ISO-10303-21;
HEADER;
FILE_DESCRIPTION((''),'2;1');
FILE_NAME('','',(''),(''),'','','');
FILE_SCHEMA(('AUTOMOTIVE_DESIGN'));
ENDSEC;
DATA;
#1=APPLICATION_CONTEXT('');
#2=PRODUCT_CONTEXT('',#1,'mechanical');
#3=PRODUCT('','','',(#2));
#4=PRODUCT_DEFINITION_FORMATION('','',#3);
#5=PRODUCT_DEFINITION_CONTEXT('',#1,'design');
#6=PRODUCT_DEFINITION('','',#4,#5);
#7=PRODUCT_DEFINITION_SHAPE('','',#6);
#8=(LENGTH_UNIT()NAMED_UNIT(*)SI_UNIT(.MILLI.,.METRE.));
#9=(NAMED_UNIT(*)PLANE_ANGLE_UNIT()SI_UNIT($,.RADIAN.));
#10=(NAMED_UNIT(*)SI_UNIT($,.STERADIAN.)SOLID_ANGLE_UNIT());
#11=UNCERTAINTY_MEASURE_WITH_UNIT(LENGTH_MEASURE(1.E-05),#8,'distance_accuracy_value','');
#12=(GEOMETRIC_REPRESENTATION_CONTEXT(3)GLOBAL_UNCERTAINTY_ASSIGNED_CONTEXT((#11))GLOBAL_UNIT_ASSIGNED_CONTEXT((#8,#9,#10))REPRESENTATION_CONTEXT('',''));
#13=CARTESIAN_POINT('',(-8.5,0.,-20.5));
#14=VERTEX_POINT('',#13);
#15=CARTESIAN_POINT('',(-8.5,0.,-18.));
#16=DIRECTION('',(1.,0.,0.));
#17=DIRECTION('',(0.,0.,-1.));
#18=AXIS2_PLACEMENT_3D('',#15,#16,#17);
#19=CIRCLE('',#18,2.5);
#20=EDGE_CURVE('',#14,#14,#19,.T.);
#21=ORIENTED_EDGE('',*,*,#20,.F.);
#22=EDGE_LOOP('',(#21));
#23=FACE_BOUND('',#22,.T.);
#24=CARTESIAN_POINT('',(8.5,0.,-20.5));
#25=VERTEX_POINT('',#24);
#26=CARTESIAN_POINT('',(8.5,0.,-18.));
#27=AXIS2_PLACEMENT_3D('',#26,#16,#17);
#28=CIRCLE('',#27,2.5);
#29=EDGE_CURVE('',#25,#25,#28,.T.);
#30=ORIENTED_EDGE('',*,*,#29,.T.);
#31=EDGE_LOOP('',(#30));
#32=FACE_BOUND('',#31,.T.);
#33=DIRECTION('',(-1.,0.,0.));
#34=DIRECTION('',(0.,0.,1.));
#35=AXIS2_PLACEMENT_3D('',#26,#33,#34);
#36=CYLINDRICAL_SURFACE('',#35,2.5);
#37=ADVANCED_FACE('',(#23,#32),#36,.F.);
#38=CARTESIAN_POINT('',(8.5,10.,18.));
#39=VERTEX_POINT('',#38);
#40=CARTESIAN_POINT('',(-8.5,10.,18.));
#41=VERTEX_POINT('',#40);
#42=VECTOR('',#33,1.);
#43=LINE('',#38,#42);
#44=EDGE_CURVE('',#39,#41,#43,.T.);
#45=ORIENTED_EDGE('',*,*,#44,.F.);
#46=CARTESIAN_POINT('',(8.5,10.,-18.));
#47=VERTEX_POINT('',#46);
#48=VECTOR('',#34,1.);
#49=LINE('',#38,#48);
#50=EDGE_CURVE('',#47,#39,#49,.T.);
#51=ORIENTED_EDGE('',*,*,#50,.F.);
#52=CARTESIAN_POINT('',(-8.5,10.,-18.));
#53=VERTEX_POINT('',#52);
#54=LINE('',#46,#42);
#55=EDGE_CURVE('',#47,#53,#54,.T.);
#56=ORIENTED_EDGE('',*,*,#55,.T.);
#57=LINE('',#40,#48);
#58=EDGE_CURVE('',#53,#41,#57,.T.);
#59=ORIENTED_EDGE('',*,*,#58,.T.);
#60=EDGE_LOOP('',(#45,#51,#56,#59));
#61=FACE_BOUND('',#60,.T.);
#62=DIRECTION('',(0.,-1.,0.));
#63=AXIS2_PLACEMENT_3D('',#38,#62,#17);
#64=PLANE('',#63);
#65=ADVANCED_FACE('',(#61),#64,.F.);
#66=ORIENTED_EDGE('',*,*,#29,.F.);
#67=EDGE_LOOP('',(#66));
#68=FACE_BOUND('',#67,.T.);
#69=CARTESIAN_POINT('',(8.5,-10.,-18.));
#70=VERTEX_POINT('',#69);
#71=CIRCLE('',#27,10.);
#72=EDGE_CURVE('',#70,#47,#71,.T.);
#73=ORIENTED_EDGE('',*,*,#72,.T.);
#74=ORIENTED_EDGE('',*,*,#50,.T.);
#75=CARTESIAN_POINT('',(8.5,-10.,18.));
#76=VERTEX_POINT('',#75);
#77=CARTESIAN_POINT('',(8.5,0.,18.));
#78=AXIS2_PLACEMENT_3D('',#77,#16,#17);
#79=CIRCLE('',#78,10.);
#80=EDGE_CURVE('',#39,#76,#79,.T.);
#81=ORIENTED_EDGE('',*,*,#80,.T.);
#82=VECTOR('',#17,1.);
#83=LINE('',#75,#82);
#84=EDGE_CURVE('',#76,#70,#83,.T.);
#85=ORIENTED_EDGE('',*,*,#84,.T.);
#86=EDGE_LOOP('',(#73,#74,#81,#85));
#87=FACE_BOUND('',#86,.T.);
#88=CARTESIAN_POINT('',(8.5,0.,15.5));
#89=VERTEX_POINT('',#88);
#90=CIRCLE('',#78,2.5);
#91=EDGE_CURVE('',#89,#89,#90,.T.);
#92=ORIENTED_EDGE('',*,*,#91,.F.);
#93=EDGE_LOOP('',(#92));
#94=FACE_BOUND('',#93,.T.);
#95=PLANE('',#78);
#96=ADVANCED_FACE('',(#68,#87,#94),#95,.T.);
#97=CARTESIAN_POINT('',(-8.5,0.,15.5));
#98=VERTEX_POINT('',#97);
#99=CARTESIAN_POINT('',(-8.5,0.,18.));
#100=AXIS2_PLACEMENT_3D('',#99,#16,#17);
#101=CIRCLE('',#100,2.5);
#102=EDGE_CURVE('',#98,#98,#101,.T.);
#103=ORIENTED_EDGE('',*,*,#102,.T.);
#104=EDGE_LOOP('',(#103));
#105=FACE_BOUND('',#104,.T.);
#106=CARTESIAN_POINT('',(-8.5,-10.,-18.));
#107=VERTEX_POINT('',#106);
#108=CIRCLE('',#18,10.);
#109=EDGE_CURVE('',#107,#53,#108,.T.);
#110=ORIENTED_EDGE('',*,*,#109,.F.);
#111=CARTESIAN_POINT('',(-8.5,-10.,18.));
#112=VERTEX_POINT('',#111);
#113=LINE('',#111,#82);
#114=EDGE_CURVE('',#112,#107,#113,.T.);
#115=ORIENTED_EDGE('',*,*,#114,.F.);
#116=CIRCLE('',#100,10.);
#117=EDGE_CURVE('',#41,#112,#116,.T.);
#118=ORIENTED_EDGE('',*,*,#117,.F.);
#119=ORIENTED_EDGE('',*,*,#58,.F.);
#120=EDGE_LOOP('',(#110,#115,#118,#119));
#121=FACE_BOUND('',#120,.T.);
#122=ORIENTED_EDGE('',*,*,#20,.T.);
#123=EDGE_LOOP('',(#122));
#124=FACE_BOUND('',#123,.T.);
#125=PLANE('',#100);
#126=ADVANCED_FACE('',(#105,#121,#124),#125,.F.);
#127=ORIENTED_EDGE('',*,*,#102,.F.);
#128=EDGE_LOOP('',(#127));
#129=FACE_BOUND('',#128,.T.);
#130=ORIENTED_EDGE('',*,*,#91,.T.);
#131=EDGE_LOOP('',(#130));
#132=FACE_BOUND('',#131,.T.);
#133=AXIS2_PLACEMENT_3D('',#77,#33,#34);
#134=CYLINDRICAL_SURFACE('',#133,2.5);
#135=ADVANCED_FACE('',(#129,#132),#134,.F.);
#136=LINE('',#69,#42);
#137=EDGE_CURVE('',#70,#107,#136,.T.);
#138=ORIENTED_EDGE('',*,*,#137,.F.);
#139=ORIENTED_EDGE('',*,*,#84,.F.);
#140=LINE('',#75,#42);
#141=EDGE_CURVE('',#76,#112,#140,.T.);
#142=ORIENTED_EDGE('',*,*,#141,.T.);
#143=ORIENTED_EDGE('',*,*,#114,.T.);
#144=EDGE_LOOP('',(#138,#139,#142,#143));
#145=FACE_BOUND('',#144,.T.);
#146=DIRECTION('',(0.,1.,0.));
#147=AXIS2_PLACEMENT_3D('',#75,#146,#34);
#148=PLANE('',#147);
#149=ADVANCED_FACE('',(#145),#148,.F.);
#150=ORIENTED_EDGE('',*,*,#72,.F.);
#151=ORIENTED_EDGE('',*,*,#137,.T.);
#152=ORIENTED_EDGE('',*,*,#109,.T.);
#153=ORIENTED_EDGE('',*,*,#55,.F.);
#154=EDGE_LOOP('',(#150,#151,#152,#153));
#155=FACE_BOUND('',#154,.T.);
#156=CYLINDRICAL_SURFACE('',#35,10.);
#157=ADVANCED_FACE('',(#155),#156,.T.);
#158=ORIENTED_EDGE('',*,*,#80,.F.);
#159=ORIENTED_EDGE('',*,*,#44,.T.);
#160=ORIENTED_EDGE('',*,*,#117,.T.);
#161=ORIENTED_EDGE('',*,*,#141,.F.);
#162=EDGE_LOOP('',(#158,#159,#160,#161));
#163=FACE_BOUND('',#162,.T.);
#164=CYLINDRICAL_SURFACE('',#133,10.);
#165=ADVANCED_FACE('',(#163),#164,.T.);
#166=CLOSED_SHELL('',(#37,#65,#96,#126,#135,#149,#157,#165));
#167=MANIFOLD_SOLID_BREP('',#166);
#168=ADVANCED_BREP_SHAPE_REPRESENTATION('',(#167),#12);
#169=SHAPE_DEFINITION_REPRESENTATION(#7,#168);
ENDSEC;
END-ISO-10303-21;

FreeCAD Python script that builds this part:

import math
import FreeCAD as App
import Part
import Sketcher

V = App.Vector
Q = App.Units.Quantity

doc = App.newDocument("Part")
body = doc.addObject("PartDesign::Body", "Body")

sketch1 = body.newObject("Sketcher::SketchObject", "Sketch")
sketch1.AttachmentSupport = (doc.getObject("YZ_Plane"), [""])
sketch1.MapMode = "FlatFace"
sketch1.addGeometry([
    Part.LineSegment(V(10, -18, 0), V(10, 18, 0)),
    Part.ArcOfCircle(Part.Circle(V(0, 18, 0), V(0, 0, 1), 10), math.radians(0), math.radians(180)),
    Part.LineSegment(V(-10, 18, 0), V(-10, -18, 0)),
    Part.ArcOfCircle(Part.Circle(V(0, -18, 0), V(0, 0, 1), 10), math.radians(180), math.radians(360)),
    Part.Circle(V(0, -18, 0), V(0, 0, 1), 2.5),
    Part.Circle(V(0, 18, 0), V(0, 0, 1), 2.5),
], False)
sketch1.addConstraint([
    Sketcher.Constraint("Tangent", 0, 2, 1, 1),
    Sketcher.Constraint("Tangent", 1, 2, 2, 1),
    Sketcher.Constraint("Tangent", 2, 2, 3, 1),
    Sketcher.Constraint("Tangent", 3, 2, 0, 1),
    Sketcher.Constraint("Vertical", 0),
    Sketcher.Constraint("Vertical", 2),
    Sketcher.Constraint("Coincident", 4, 3, 3, 3),
    Sketcher.Constraint("Coincident", 5, 3, 1, 3),
    Sketcher.Constraint("Equal", 4, 5),
    Sketcher.Constraint("Symmetric", 1, 3, 3, 3, -1, 1),
    Sketcher.Constraint("Diameter", 4, Q("5 mm")),
    Sketcher.Constraint("Radius", 1, Q("10 mm")),
    Sketcher.Constraint("DistanceY", 0, 1, 0, 2, Q("36 mm")),
])
pad1 = body.newObject("PartDesign::Pad", "Pad")
pad1.Profile = sketch1
pad1.Length = 17
pad1.Midplane = True

doc.recompute()
